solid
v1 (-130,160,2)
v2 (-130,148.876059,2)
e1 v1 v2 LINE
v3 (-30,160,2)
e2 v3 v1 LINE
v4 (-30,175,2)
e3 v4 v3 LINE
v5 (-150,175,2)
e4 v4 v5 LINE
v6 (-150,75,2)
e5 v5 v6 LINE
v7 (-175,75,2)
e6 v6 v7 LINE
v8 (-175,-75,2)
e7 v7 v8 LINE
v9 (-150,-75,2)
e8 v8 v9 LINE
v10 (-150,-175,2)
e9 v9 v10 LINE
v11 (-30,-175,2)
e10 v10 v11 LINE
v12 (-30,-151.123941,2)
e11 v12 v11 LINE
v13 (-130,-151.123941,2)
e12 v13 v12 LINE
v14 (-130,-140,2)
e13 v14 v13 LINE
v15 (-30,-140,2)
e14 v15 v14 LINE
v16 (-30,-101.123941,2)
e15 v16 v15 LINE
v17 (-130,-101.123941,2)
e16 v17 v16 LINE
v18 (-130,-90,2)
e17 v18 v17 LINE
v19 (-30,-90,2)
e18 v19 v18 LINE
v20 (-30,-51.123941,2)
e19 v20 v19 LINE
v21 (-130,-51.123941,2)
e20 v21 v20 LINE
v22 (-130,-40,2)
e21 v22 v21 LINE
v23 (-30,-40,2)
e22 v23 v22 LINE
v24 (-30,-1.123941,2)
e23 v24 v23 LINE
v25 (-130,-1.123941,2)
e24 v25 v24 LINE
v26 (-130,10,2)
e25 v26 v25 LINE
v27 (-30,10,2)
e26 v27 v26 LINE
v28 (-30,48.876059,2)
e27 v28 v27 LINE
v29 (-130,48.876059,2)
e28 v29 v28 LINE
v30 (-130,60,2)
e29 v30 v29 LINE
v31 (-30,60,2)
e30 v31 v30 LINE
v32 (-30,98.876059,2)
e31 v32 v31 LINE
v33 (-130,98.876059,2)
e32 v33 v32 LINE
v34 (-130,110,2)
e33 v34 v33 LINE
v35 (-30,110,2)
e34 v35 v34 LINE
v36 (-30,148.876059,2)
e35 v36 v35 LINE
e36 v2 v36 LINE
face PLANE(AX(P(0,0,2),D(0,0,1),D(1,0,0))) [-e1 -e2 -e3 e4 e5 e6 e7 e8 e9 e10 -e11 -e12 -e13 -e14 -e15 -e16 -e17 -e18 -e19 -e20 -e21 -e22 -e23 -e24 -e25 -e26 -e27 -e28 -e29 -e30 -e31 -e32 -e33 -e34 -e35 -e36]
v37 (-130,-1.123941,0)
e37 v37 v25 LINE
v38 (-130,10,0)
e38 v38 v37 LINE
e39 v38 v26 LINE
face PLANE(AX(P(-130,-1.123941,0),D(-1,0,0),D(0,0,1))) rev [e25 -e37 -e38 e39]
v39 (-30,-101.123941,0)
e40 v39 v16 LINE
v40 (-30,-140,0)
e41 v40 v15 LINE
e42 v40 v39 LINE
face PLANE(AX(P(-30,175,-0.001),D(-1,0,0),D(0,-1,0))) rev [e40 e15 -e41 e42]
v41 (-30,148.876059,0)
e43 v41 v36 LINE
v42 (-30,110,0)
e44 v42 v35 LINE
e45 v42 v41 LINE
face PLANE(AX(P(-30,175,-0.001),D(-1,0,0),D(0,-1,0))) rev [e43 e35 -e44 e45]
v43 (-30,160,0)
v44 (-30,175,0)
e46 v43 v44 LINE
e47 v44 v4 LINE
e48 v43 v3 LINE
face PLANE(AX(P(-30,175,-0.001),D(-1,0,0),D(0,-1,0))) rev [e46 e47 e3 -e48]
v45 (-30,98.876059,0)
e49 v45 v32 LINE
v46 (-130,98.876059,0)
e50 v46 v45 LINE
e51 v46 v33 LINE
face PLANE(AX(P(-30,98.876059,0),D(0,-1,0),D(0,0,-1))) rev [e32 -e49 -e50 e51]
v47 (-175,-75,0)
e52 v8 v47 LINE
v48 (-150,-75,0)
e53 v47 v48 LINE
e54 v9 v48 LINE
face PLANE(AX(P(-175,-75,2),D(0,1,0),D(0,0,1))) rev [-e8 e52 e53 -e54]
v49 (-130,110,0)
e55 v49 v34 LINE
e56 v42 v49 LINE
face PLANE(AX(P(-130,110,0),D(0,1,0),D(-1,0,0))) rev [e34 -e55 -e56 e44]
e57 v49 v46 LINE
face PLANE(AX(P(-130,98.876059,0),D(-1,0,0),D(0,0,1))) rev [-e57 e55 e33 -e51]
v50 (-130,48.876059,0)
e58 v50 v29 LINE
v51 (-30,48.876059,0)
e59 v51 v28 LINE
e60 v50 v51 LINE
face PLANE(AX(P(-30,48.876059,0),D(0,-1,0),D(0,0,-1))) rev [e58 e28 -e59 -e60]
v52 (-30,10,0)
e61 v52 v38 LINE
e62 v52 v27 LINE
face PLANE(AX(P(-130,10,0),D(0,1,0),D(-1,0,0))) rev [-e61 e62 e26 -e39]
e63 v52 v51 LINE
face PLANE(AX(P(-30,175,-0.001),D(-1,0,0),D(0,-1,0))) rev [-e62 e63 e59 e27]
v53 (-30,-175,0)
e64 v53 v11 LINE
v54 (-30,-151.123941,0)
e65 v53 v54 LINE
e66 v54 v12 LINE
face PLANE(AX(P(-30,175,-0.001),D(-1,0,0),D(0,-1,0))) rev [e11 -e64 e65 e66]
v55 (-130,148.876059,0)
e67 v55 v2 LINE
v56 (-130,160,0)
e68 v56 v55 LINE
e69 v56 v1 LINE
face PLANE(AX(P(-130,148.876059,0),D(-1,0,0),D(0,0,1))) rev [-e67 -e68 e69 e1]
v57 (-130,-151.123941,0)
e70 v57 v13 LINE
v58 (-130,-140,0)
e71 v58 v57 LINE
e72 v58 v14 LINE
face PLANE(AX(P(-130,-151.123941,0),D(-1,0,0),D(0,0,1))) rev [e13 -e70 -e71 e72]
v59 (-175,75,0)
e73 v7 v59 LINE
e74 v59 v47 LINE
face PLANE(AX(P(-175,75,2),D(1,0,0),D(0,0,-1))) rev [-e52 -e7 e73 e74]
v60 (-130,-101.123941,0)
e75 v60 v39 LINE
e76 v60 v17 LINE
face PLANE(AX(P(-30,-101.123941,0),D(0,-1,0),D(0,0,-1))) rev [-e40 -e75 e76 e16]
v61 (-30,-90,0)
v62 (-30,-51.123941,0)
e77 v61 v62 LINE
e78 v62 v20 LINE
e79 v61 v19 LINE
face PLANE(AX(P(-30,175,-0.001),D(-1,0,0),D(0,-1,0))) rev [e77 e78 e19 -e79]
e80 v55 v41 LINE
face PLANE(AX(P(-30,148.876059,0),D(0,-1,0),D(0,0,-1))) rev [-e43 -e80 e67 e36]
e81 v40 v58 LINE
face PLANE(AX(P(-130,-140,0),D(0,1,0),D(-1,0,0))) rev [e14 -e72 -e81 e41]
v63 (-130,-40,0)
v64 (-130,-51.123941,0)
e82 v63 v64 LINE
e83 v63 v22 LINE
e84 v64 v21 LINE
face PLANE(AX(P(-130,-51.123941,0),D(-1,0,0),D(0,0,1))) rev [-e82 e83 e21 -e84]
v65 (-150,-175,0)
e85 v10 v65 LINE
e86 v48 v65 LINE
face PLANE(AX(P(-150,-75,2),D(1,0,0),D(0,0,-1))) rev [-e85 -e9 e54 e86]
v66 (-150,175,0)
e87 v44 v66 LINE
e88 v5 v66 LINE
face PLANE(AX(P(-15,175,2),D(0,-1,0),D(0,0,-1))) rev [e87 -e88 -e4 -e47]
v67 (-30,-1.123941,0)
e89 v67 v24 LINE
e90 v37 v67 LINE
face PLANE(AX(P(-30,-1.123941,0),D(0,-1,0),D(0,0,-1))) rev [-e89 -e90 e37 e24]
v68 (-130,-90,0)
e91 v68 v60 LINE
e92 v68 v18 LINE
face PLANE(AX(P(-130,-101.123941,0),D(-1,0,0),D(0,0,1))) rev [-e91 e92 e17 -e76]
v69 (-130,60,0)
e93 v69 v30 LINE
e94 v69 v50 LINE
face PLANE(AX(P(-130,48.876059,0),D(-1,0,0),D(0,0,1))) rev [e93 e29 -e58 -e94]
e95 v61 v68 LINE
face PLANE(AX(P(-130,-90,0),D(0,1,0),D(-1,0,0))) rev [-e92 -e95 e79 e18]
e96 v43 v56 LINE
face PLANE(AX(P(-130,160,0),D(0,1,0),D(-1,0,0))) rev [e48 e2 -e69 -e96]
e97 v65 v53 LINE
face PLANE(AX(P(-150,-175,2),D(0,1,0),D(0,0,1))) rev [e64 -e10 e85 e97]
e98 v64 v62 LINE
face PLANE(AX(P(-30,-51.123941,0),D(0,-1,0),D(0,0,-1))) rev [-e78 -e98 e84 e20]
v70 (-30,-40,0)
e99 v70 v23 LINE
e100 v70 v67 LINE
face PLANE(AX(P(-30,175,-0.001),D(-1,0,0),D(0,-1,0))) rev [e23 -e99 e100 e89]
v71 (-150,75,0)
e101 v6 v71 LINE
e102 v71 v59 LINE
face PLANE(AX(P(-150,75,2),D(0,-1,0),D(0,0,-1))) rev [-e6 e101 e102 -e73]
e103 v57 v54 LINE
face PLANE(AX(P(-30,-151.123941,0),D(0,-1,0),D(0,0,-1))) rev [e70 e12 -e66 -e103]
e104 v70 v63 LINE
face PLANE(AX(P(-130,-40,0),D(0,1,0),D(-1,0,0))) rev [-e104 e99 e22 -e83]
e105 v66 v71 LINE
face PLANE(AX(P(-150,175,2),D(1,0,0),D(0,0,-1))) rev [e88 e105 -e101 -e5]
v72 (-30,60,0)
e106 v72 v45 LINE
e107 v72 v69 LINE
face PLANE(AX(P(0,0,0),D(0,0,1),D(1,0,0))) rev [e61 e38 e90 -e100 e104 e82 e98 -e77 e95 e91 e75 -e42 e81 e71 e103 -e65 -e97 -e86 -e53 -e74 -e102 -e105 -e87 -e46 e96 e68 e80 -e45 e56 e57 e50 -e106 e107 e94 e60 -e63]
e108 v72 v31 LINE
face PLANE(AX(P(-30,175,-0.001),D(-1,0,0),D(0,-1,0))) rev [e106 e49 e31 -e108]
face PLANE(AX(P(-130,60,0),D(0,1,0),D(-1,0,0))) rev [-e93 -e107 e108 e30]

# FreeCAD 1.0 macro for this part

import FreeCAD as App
import Part
import Sketcher

doc = App.newDocument("Part")
body = doc.addObject("PartDesign::Body", "Body")

sketch1 = body.newObject("Sketcher::SketchObject", "Sketch")
sketch1.AttachmentSupport = (doc.getObject("XY_Plane"), [""])
sketch1.MapMode = "FlatFace"
sketch1.addGeometry([
    Part.LineSegment(App.Vector(-15, -175, 0), App.Vector(-15, 175, 0)),
    Part.LineSegment(App.Vector(-15, 175, 0), App.Vector(-150, 175, 0)),
    Part.LineSegment(App.Vector(-150, 175, 0), App.Vector(-150, 75, 0)),
    Part.LineSegment(App.Vector(-150, 75, 0), App.Vector(-175, 75, 0)),
    Part.LineSegment(App.Vector(-175, 75, 0), App.Vector(-175, -75, 0)),
    Part.LineSegment(App.Vector(-175, -75, 0), App.Vector(-150, -75, 0)),
    Part.LineSegment(App.Vector(-150, -75, 0), App.Vector(-150, -175, 0)),
    Part.LineSegment(App.Vector(-150, -175, 0), App.Vector(-15, -175, 0)),
], False)
sketch1.addConstraint([
    Sketcher.Constraint("Coincident", 0, 2, 1, 1),
    Sketcher.Constraint("Coincident", 1, 2, 2, 1),
    Sketcher.Constraint("Coincident", 2, 2, 3, 1),
    Sketcher.Constraint("Coincident", 3, 2, 4, 1),
    Sketcher.Constraint("Coincident", 4, 2, 5, 1),
    Sketcher.Constraint("Coincident", 5, 2, 6, 1),
    Sketcher.Constraint("Coincident", 6, 2, 7, 1),
    Sketcher.Constraint("Coincident", 7, 2, 0, 1),
    Sketcher.Constraint("Vertical", 0),
    Sketcher.Constraint("Horizontal", 1),
    Sketcher.Constraint("Vertical", 2),
    Sketcher.Constraint("Horizontal", 3),
    Sketcher.Constraint("Vertical", 4),
    Sketcher.Constraint("Horizontal", 5),
    Sketcher.Constraint("Vertical", 6),
    Sketcher.Constraint("Horizontal", 7),
    Sketcher.Constraint("Symmetric", 2, 2, 5, 2, -1),
    Sketcher.Constraint("Equal", 2, 6),
    Sketcher.Constraint("DistanceX", 1, 2, 1, 1, 135.0),
    Sketcher.Constraint("DistanceX", 3, 2, 3, 1, 25.0),
    Sketcher.Constraint("DistanceY", 0, 1, 0, 2, 350.0),
    Sketcher.Constraint("DistanceY", 2, 2, 2, 1, 100.0),
    Sketcher.Constraint("DistanceX", 0, 2, -1, 1, 15.0),
])
pad1 = body.newObject("PartDesign::Pad", "Pad")
pad1.Profile = sketch1
pad1.Length = 2

sketch2 = body.newObject("Sketcher::SketchObject", "Sketch001")
sketch2.AttachmentSupport = (doc.getObject("XY_Plane"), [""])
sketch2.MapMode = "FlatFace"
sketch2.AttachmentOffset = App.Placement(App.Vector(0, 0, 2), App.Rotation())
sketch2.addGeometry([
    Part.LineSegment(App.Vector(-130, 160, 0), App.Vector(-130, 148.876059, 0)),
    Part.LineSegment(App.Vector(-130, 148.876059, 0), App.Vector(-30, 148.876059, 0)),
    Part.LineSegment(App.Vector(-30, 148.876059, 0), App.Vector(-30, 160, 0)),
    Part.LineSegment(App.Vector(-30, 160, 0), App.Vector(-130, 160, 0)),
], False)
sketch2.addConstraint([
    Sketcher.Constraint("Coincident", 0, 2, 1, 1),
    Sketcher.Constraint("Coincident", 1, 2, 2, 1),
    Sketcher.Constraint("Coincident", 2, 2, 3, 1),
    Sketcher.Constraint("Coincident", 3, 2, 0, 1),
    Sketcher.Constraint("Vertical", 0),
    Sketcher.Constraint("Horizontal", 1),
    Sketcher.Constraint("Vertical", 2),
    Sketcher.Constraint("Horizontal", 3),
    Sketcher.Constraint("DistanceX", 1, 1, 1, 2, 100.0),
    Sketcher.Constraint("DistanceX", 0, 2, -1, 1, 130.0),
    Sketcher.Constraint("DistanceY", -1, 1, 2, 2, 160.0),
    Sketcher.Constraint("DistanceY", 0, 2, 0, 1, 11.123941),
])
pocket1 = body.newObject("PartDesign::Pocket", "Pocket")
pocket1.Profile = sketch2
pocket1.Length = 2
doc.recompute()

linearpattern = body.newObject("PartDesign::LinearPattern", "LinearPattern")
linearpattern.Originals = [pocket1]
linearpattern.Direction = (doc.getObject("Y_Axis"), [""])
linearpattern.Mode = "offset"
linearpattern.Offset = 50
linearpattern.Occurrences = 7
linearpattern.Reversed = True
body.Tip = linearpattern

sketch3 = body.newObject("Sketcher::SketchObject", "Sketch002")
sketch3.AttachmentSupport = (doc.getObject("XY_Plane"), [""])
sketch3.MapMode = "FlatFace"
sketch3.AttachmentOffset = App.Placement(App.Vector(0, 0, 2), App.Rotation())
sketch3.addGeometry([
    Part.LineSegment(App.Vector(-30, 175, 0), App.Vector(-30, -175, 0)),
    Part.LineSegment(App.Vector(-30, -175, 0), App.Vector(-15, -175, 0)),
    Part.LineSegment(App.Vector(-15, -175, 0), App.Vector(-15, 175, 0)),
    Part.LineSegment(App.Vector(-15, 175, 0), App.Vector(-30, 175, 0)),
], False)
sketch3.addConstraint([
    Sketcher.Constraint("Coincident", 0, 2, 1, 1),
    Sketcher.Constraint("Coincident", 1, 2, 2, 1),
    Sketcher.Constraint("Coincident", 2, 2, 3, 1),
    Sketcher.Constraint("Coincident", 3, 2, 0, 1),
    Sketcher.Constraint("Vertical", 0),
    Sketcher.Constraint("Horizontal", 1),
    Sketcher.Constraint("Vertical", 2),
    Sketcher.Constraint("Horizontal", 3),
    Sketcher.Constraint("DistanceX", 1, 1, 1, 2, 15.0),
    Sketcher.Constraint("DistanceY", 0, 2, 0, 1, 350.0),
    Sketcher.Constraint("DistanceX", 0, 2, -1, 1, 30.0),
    Sketcher.Constraint("DistanceY", 0, 2, -1, 1, 175.0),
])
pocket2 = body.newObject("PartDesign::Pocket", "Pocket001")
pocket2.Profile = sketch3
pocket2.Type = "UpToFirst"

doc.recompute()
